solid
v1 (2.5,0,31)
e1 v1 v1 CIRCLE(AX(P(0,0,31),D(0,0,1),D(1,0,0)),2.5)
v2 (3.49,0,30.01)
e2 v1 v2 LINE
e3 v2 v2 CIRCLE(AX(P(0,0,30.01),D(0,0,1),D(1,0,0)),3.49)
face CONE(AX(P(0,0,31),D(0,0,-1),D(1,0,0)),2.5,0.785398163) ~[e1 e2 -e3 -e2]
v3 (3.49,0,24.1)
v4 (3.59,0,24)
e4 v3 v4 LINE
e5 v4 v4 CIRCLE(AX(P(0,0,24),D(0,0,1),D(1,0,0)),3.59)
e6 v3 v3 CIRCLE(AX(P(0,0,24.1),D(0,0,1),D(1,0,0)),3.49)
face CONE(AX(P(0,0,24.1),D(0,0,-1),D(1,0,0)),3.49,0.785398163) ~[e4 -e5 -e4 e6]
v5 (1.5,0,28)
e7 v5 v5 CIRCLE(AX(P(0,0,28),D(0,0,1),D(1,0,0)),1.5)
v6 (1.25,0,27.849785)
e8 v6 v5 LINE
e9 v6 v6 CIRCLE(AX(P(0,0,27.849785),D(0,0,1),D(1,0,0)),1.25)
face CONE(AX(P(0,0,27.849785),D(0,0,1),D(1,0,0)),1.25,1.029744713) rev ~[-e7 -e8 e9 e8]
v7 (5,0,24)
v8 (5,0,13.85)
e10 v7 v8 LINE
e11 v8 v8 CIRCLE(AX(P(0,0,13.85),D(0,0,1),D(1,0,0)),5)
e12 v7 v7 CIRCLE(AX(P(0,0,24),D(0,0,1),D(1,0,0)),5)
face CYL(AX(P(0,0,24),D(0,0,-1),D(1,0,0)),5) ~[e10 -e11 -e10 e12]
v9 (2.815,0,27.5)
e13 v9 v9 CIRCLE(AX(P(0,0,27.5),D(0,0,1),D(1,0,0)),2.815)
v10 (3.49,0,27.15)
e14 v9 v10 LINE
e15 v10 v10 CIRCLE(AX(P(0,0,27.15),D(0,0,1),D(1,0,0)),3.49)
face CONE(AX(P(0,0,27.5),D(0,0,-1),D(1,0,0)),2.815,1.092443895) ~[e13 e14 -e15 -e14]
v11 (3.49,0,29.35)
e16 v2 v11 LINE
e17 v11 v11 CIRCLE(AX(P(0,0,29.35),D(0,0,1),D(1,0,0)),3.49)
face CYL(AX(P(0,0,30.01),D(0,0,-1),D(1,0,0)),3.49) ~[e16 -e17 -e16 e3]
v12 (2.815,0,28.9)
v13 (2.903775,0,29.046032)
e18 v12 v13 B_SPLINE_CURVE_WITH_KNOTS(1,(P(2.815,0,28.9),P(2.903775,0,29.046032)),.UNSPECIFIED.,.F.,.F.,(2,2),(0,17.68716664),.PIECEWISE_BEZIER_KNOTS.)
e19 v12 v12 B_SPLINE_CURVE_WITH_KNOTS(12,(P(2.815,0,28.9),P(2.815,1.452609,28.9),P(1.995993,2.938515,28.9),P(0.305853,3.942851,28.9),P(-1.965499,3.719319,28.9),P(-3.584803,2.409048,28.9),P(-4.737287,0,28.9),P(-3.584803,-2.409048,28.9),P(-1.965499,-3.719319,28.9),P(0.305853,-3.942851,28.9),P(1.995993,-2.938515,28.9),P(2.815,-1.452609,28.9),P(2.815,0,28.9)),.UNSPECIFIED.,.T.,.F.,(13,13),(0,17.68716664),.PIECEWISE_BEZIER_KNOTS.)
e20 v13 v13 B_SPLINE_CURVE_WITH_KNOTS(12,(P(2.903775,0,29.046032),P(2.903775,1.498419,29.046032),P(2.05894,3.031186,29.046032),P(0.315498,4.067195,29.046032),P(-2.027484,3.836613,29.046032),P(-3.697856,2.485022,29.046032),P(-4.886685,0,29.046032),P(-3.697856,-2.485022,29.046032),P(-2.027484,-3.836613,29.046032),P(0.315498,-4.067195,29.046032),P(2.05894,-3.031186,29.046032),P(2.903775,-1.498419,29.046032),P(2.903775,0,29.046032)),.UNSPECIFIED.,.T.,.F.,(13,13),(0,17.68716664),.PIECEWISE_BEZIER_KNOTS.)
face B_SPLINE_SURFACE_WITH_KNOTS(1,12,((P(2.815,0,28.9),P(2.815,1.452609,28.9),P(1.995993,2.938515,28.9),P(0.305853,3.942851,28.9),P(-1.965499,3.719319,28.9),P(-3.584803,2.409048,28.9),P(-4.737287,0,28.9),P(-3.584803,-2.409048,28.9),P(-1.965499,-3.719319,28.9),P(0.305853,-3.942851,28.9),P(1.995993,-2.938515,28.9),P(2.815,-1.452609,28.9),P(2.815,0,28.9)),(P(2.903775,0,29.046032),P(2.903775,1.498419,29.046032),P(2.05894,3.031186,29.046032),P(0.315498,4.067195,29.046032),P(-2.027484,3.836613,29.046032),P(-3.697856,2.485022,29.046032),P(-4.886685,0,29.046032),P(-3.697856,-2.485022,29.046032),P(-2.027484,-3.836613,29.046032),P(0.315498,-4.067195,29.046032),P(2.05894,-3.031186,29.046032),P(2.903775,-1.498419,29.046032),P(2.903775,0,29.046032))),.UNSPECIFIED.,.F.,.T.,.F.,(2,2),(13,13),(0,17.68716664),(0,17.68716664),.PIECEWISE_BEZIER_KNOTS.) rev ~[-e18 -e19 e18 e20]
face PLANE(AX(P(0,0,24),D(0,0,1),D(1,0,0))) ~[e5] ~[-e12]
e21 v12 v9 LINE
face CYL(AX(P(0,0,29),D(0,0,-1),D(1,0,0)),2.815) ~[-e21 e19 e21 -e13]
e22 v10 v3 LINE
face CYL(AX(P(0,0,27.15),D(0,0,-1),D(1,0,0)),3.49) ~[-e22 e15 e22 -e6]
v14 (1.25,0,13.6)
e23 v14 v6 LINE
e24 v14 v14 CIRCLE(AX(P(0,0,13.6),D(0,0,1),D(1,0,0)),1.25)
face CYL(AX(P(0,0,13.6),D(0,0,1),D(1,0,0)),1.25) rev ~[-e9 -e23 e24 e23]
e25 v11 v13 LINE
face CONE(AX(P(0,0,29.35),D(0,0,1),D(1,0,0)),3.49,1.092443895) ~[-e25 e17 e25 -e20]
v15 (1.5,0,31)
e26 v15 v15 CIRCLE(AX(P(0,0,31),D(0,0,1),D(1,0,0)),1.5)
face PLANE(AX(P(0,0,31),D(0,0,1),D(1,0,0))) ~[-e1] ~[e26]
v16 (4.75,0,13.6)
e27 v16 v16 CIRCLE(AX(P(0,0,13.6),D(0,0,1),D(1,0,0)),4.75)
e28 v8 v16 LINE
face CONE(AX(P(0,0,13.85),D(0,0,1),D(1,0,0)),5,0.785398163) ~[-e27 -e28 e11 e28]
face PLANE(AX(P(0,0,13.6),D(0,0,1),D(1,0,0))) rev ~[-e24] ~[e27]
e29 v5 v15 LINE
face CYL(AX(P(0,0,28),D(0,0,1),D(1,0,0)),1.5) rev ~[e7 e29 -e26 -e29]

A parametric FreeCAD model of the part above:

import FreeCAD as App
import Part
import Sketcher
Q = App.Units.Quantity


def edges_at(feature, points):
    """Names of the edges that pass closest to the given points."""
    edges = feature.Shape.Edges
    near = lambda p: min(range(len(edges)), key=lambda i: edges[i].distToShape(Part.Vertex(*p))[0])
    return sorted({f"Edge{near(p) + 1}" for p in points})


def add_polygon(sketch, points):
    """Adds a closed chain of lines whose ends are joined by coincident constraints."""
    first, n = sketch.GeometryCount, len(points)
    for a, b in zip(points, points[1:] + points[:1]):
        sketch.addGeometry(Part.LineSegment(App.Vector(*a, 0), App.Vector(*b, 0)), False)
    for i in range(n):
        sketch.addConstraint(Sketcher.Constraint("Coincident", first + i, 2, first + (i + 1) % n, 1))

doc = App.newDocument("Part")
body = doc.addObject("PartDesign::Body", "Body")

sketch1 = body.newObject("Sketcher::SketchObject", "Sketch")
sketch1.AttachmentSupport = (doc.getObject("XZ_Plane"), [""])
sketch1.MapMode = "FlatFace"
add_polygon(sketch1, [(3.49, 30.01), (2.5, 31), (1.5, 31), (1.5, 28), (1.25, 27.849785), (1.25, 13.6), (5, 13.6), (5, 24), (3.49, 24), (3.49, 27.15), (2.815, 27.5), (2.815, 29), (3.49, 29.35)])
sketch1.addConstraint(Sketcher.Constraint("Horizontal", 1))
sketch1.addConstraint(Sketcher.Constraint("Vertical", 2))
sketch1.addConstraint(Sketcher.Constraint("Vertical", 4))
sketch1.addConstraint(Sketcher.Constraint("Horizontal", 5))
sketch1.addConstraint(Sketcher.Constraint("Vertical", 6))
sketch1.addConstraint(Sketcher.Constraint("Horizontal", 7))
sketch1.addConstraint(Sketcher.Constraint("Vertical", 8))
sketch1.addConstraint(Sketcher.Constraint("Vertical", 10))
sketch1.addConstraint(Sketcher.Constraint("Vertical", 12))
sketch1.addConstraint(Sketcher.Constraint("Vertical", 8, 2, 11, 2))
sketch1.addConstraint(Sketcher.Constraint("Equal", 9, 11))
sketch1.addConstraint(Sketcher.Constraint("DistanceX", 1, 2, 1, 1, 1.0))
sketch1.addConstraint(Sketcher.Constraint("DistanceY", 2, 2, 2, 1, 3.0))
sketch1.addConstraint(Sketcher.Constraint("Angle", 0, Q("135 deg")))
sketch1.addConstraint(Sketcher.Constraint("DistanceY", 6, 1, 6, 2, 10.4))
sketch1.addConstraint(Sketcher.Constraint("DistanceY", 10, 1, 10, 2, 1.5))
sketch1.addConstraint(Sketcher.Constraint("DistanceY", -1, 1, 0, 2, 31.0))
sketch1.addConstraint(Sketcher.Constraint("DistanceX", -1, 1, 5, 2, 5.0))
sketch1.addConstraint(Sketcher.Constraint("DistanceY", -1, 1, 6, 2, 24.0))
sketch1.addConstraint(Sketcher.Constraint("DistanceY", -1, 1, 10, 2, 29.0))
sketch1.addConstraint(Sketcher.Constraint("DistanceX", 5, 1, 5, 2, 3.75))
sketch1.addConstraint(Sketcher.Constraint("DistanceX", 7, 2, 7, 1, 1.51))
sketch1.addConstraint(Sketcher.Constraint("DistanceY", 8, 1, 8, 2, 3.15))
sketch1.addConstraint(Sketcher.Constraint("DistanceY", 12, 1, 12, 2, 0.66))
sketch1.addConstraint(Sketcher.Constraint("DistanceX", -1, 1, 9, 2, 2.815))
sketch1.addConstraint(Sketcher.Constraint("Distance", 3, 0.291658))
revolution = body.newObject("PartDesign::Revolution", "Revolution")
revolution.Profile = sketch1
revolution.ReferenceAxis = (sketch1, ["V_Axis"])
revolution.Angle = 360
doc.recompute()

chamfer = body.newObject("PartDesign::Chamfer", "Chamfer")
chamfer.Base = (revolution, edges_at(revolution, [(-5, 0, 13.6)]))
chamfer.Size = 0.25
doc.recompute()

chamfer2 = body.newObject("PartDesign::Chamfer", "Chamfer001")
chamfer2.Base = (chamfer, edges_at(chamfer, [(-2.815, 0, 29)]))
chamfer2.Size = 0.1
doc.recompute()

chamfer3 = body.newObject("PartDesign::Chamfer", "Chamfer002")
chamfer3.Base = (chamfer2, edges_at(chamfer2, [(-3.49, 0, 24)]))
chamfer3.Size = 0.1

doc.recompute()
